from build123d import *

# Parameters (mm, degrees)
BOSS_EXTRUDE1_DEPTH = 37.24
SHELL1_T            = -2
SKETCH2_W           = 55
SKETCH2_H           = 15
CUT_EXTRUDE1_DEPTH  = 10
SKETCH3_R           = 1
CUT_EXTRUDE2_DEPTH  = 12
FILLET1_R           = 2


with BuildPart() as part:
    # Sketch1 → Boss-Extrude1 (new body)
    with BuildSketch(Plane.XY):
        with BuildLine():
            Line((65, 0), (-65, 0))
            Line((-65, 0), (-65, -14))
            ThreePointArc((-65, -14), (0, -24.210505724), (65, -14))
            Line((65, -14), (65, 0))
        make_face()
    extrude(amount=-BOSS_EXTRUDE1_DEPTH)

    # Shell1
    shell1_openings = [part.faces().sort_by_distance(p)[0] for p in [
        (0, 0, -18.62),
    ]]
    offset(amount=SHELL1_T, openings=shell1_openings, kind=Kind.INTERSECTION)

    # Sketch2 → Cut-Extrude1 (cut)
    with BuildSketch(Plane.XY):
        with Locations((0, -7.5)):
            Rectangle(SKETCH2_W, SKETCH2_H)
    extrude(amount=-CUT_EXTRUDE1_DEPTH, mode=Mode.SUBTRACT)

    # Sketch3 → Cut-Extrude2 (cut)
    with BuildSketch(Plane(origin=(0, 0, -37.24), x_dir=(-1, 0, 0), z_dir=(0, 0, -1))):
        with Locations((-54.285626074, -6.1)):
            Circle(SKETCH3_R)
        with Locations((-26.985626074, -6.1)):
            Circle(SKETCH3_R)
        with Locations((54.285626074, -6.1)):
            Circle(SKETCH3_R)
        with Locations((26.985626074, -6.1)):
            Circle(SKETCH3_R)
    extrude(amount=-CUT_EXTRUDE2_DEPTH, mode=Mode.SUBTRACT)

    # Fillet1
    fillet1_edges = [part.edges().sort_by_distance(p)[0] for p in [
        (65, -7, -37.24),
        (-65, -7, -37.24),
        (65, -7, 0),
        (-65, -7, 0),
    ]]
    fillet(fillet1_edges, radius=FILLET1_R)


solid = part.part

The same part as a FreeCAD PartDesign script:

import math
import FreeCAD as App
import Part
import Sketcher

V = App.Vector


def edges_at(feature, points):
    """Names of the edges that pass closest to the given points."""
    edges = feature.Shape.Edges
    near = lambda p: min(range(len(edges)), key=lambda i: edges[i].distToShape(Part.Vertex(*p))[0])
    return sorted({f"Edge{near(p) + 1}" for p in points})


def faces_at(feature, points):
    """Names of the faces that lie closest to the given points."""
    faces = feature.Shape.Faces
    near = lambda p: min(range(len(faces)), key=lambda i: faces[i].distToShape(Part.Vertex(*p))[0])
    return sorted({f"Face{near(p) + 1}" for p in points})

doc = App.newDocument("Part")
body = doc.addObject("PartDesign::Body", "Body")

sketch1 = doc.addObject("Sketcher::SketchObject", "Sketch")
body.addObject(sketch1)
sketch1.AttachmentSupport = (doc.XY_Plane, [""])
sketch1.MapMode = "FlatFace"
sketch1.addGeometry(Part.LineSegment(V(65, 0, 0), V(-65, 0, 0)), False)
sketch1.addGeometry(Part.LineSegment(V(-65, 0, 0), V(-65, -14, 0)), False)
sketch1.addGeometry(Part.ArcOfCircle(Part.Circle(V(0, 187.789494, 0), V(0, 0, 1), 212), math.radians(-107.854677), math.radians(-72.145323)), False)
sketch1.addGeometry(Part.LineSegment(V(65, -14, 0), V(65, 0, 0)), False)
sketch1.addConstraint(Sketcher.Constraint("Coincident", 0, 2, 1, 1))
sketch1.addConstraint(Sketcher.Constraint("Coincident", 1, 2, 2, 1))
sketch1.addConstraint(Sketcher.Constraint("Coincident", 2, 2, 3, 1))
sketch1.addConstraint(Sketcher.Constraint("Coincident", 3, 2, 0, 1))
sketch1.addConstraint(Sketcher.Constraint("Horizontal", 0))
sketch1.addConstraint(Sketcher.Constraint("Vertical", 1))
sketch1.addConstraint(Sketcher.Constraint("Vertical", 3))
sketch1.addConstraint(Sketcher.Constraint("Symmetric", 0, 2, 3, 2, -1, 1))
sketch1.addConstraint(Sketcher.Constraint("PointOnObject", 2, 3, -2))
sketch1.addConstraint(Sketcher.Constraint("Radius", 2, 212.0))
sketch1.addConstraint(Sketcher.Constraint("DistanceX", 0, 2, 0, 1, 130.0))
sketch1.addConstraint(Sketcher.Constraint("DistanceY", 1, 2, 1, 1, 14.0))
pad1 = doc.addObject("PartDesign::Pad", "Pad")
body.addObject(pad1)
pad1.Profile = sketch1
pad1.Length = 37.24
pad1.Reversed = True
doc.recompute()

thickness = doc.addObject("PartDesign::Thickness", "Thickness")
body.addObject(thickness)
thickness.Base = (pad1, faces_at(pad1, [(0, 0, -18.62)]))
thickness.Value = 2
thickness.Reversed = True
thickness.Join = "Intersection"

sketch2 = doc.addObject("Sketcher::SketchObject", "Sketch001")
body.addObject(sketch2)
sketch2.AttachmentSupport = (doc.XY_Plane, [""])
sketch2.MapMode = "FlatFace"
sketch2.addGeometry(Part.LineSegment(V(-27.5, 0, 0), V(-27.5, -15, 0)), False)
sketch2.addGeometry(Part.LineSegment(V(-27.5, -15, 0), V(27.5, -15, 0)), False)
sketch2.addGeometry(Part.LineSegment(V(27.5, -15, 0), V(27.5, 0, 0)), False)
sketch2.addGeometry(Part.LineSegment(V(27.5, 0, 0), V(-27.5, 0, 0)), False)
sketch2.addConstraint(Sketcher.Constraint("Coincident", 0, 2, 1, 1))
sketch2.addConstraint(Sketcher.Constraint("Coincident", 1, 2, 2, 1))
sketch2.addConstraint(Sketcher.Constraint("Coincident", 2, 2, 3, 1))
sketch2.addConstraint(Sketcher.Constraint("Coincident", 3, 2, 0, 1))
sketch2.addConstraint(Sketcher.Constraint("Vertical", 0))
sketch2.addConstraint(Sketcher.Constraint("Horizontal", 1))
sketch2.addConstraint(Sketcher.Constraint("Vertical", 2))
sketch2.addConstraint(Sketcher.Constraint("Horizontal", 3))
sketch2.addConstraint(Sketcher.Constraint("Symmetric", 2, 2, 3, 2, -1, 1))
sketch2.addConstraint(Sketcher.Constraint("DistanceX", 1, 1, 1, 2, 55.0))
sketch2.addConstraint(Sketcher.Constraint("DistanceY", 0, 2, 0, 1, 15.0))
pocket1 = doc.addObject("PartDesign::Pocket", "Pocket")
body.addObject(pocket1)
pocket1.Profile = sketch2
pocket1.Length = 10

sketch3 = doc.addObject("Sketcher::SketchObject", "Sketch002")
body.addObject(sketch3)
sketch3.AttachmentSupport = (doc.XY_Plane, [""])
sketch3.MapMode = "FlatFace"
sketch3.AttachmentOffset = App.Placement(V(0, 0, -37.24), App.Rotation())
sketch3.addGeometry(Part.Circle(V(54.285626, -6.1, 0), V(0, 0, 1), 1), False)
sketch3.addGeometry(Part.Circle(V(26.985626, -6.1, 0), V(0, 0, 1), 1), False)
sketch3.addGeometry(Part.Circle(V(-54.285626, -6.1, 0), V(0, 0, 1), 1), False)
sketch3.addGeometry(Part.Circle(V(-26.985626, -6.1, 0), V(0, 0, 1), 1), False)
sketch3.addConstraint(Sketcher.Constraint("Equal", 0, 1))
sketch3.addConstraint(Sketcher.Constraint("Equal", 1, 2))
sketch3.addConstraint(Sketcher.Constraint("Equal", 2, 3))
sketch3.addConstraint(Sketcher.Constraint("Symmetric", 0, 3, 2, 3, -2))
sketch3.addConstraint(Sketcher.Constraint("Symmetric", 1, 3, 3, 3, -2))
sketch3.addConstraint(Sketcher.Constraint("Horizontal", 0, 3, 1, 3))
sketch3.addConstraint(Sketcher.Constraint("Diameter", 0, 2.0))
sketch3.addConstraint(Sketcher.Constraint("DistanceY", 0, 3, -1, 1, 6.1))
sketch3.addConstraint(Sketcher.Constraint("DistanceX", 1, 3, 0, 3, 27.3))
sketch3.addConstraint(Sketcher.Constraint("DistanceX", -1, 1, 0, 3, 54.285626))
pocket2 = doc.addObject("PartDesign::Pocket", "Pocket001")
body.addObject(pocket2)
pocket2.Profile = sketch3
pocket2.Length = 12
pocket2.Reversed = True
doc.recompute()

fillet = doc.addObject("PartDesign::Fillet", "Fillet")
body.addObject(fillet)
fillet.Base = (pocket2, edges_at(pocket2, [
    (65, -7, -37.24),
    (-65, -7, -37.24),
    (65, -7, 0),
    (-65, -7, 0),
]))
fillet.Radius = 2

doc.recompute()
